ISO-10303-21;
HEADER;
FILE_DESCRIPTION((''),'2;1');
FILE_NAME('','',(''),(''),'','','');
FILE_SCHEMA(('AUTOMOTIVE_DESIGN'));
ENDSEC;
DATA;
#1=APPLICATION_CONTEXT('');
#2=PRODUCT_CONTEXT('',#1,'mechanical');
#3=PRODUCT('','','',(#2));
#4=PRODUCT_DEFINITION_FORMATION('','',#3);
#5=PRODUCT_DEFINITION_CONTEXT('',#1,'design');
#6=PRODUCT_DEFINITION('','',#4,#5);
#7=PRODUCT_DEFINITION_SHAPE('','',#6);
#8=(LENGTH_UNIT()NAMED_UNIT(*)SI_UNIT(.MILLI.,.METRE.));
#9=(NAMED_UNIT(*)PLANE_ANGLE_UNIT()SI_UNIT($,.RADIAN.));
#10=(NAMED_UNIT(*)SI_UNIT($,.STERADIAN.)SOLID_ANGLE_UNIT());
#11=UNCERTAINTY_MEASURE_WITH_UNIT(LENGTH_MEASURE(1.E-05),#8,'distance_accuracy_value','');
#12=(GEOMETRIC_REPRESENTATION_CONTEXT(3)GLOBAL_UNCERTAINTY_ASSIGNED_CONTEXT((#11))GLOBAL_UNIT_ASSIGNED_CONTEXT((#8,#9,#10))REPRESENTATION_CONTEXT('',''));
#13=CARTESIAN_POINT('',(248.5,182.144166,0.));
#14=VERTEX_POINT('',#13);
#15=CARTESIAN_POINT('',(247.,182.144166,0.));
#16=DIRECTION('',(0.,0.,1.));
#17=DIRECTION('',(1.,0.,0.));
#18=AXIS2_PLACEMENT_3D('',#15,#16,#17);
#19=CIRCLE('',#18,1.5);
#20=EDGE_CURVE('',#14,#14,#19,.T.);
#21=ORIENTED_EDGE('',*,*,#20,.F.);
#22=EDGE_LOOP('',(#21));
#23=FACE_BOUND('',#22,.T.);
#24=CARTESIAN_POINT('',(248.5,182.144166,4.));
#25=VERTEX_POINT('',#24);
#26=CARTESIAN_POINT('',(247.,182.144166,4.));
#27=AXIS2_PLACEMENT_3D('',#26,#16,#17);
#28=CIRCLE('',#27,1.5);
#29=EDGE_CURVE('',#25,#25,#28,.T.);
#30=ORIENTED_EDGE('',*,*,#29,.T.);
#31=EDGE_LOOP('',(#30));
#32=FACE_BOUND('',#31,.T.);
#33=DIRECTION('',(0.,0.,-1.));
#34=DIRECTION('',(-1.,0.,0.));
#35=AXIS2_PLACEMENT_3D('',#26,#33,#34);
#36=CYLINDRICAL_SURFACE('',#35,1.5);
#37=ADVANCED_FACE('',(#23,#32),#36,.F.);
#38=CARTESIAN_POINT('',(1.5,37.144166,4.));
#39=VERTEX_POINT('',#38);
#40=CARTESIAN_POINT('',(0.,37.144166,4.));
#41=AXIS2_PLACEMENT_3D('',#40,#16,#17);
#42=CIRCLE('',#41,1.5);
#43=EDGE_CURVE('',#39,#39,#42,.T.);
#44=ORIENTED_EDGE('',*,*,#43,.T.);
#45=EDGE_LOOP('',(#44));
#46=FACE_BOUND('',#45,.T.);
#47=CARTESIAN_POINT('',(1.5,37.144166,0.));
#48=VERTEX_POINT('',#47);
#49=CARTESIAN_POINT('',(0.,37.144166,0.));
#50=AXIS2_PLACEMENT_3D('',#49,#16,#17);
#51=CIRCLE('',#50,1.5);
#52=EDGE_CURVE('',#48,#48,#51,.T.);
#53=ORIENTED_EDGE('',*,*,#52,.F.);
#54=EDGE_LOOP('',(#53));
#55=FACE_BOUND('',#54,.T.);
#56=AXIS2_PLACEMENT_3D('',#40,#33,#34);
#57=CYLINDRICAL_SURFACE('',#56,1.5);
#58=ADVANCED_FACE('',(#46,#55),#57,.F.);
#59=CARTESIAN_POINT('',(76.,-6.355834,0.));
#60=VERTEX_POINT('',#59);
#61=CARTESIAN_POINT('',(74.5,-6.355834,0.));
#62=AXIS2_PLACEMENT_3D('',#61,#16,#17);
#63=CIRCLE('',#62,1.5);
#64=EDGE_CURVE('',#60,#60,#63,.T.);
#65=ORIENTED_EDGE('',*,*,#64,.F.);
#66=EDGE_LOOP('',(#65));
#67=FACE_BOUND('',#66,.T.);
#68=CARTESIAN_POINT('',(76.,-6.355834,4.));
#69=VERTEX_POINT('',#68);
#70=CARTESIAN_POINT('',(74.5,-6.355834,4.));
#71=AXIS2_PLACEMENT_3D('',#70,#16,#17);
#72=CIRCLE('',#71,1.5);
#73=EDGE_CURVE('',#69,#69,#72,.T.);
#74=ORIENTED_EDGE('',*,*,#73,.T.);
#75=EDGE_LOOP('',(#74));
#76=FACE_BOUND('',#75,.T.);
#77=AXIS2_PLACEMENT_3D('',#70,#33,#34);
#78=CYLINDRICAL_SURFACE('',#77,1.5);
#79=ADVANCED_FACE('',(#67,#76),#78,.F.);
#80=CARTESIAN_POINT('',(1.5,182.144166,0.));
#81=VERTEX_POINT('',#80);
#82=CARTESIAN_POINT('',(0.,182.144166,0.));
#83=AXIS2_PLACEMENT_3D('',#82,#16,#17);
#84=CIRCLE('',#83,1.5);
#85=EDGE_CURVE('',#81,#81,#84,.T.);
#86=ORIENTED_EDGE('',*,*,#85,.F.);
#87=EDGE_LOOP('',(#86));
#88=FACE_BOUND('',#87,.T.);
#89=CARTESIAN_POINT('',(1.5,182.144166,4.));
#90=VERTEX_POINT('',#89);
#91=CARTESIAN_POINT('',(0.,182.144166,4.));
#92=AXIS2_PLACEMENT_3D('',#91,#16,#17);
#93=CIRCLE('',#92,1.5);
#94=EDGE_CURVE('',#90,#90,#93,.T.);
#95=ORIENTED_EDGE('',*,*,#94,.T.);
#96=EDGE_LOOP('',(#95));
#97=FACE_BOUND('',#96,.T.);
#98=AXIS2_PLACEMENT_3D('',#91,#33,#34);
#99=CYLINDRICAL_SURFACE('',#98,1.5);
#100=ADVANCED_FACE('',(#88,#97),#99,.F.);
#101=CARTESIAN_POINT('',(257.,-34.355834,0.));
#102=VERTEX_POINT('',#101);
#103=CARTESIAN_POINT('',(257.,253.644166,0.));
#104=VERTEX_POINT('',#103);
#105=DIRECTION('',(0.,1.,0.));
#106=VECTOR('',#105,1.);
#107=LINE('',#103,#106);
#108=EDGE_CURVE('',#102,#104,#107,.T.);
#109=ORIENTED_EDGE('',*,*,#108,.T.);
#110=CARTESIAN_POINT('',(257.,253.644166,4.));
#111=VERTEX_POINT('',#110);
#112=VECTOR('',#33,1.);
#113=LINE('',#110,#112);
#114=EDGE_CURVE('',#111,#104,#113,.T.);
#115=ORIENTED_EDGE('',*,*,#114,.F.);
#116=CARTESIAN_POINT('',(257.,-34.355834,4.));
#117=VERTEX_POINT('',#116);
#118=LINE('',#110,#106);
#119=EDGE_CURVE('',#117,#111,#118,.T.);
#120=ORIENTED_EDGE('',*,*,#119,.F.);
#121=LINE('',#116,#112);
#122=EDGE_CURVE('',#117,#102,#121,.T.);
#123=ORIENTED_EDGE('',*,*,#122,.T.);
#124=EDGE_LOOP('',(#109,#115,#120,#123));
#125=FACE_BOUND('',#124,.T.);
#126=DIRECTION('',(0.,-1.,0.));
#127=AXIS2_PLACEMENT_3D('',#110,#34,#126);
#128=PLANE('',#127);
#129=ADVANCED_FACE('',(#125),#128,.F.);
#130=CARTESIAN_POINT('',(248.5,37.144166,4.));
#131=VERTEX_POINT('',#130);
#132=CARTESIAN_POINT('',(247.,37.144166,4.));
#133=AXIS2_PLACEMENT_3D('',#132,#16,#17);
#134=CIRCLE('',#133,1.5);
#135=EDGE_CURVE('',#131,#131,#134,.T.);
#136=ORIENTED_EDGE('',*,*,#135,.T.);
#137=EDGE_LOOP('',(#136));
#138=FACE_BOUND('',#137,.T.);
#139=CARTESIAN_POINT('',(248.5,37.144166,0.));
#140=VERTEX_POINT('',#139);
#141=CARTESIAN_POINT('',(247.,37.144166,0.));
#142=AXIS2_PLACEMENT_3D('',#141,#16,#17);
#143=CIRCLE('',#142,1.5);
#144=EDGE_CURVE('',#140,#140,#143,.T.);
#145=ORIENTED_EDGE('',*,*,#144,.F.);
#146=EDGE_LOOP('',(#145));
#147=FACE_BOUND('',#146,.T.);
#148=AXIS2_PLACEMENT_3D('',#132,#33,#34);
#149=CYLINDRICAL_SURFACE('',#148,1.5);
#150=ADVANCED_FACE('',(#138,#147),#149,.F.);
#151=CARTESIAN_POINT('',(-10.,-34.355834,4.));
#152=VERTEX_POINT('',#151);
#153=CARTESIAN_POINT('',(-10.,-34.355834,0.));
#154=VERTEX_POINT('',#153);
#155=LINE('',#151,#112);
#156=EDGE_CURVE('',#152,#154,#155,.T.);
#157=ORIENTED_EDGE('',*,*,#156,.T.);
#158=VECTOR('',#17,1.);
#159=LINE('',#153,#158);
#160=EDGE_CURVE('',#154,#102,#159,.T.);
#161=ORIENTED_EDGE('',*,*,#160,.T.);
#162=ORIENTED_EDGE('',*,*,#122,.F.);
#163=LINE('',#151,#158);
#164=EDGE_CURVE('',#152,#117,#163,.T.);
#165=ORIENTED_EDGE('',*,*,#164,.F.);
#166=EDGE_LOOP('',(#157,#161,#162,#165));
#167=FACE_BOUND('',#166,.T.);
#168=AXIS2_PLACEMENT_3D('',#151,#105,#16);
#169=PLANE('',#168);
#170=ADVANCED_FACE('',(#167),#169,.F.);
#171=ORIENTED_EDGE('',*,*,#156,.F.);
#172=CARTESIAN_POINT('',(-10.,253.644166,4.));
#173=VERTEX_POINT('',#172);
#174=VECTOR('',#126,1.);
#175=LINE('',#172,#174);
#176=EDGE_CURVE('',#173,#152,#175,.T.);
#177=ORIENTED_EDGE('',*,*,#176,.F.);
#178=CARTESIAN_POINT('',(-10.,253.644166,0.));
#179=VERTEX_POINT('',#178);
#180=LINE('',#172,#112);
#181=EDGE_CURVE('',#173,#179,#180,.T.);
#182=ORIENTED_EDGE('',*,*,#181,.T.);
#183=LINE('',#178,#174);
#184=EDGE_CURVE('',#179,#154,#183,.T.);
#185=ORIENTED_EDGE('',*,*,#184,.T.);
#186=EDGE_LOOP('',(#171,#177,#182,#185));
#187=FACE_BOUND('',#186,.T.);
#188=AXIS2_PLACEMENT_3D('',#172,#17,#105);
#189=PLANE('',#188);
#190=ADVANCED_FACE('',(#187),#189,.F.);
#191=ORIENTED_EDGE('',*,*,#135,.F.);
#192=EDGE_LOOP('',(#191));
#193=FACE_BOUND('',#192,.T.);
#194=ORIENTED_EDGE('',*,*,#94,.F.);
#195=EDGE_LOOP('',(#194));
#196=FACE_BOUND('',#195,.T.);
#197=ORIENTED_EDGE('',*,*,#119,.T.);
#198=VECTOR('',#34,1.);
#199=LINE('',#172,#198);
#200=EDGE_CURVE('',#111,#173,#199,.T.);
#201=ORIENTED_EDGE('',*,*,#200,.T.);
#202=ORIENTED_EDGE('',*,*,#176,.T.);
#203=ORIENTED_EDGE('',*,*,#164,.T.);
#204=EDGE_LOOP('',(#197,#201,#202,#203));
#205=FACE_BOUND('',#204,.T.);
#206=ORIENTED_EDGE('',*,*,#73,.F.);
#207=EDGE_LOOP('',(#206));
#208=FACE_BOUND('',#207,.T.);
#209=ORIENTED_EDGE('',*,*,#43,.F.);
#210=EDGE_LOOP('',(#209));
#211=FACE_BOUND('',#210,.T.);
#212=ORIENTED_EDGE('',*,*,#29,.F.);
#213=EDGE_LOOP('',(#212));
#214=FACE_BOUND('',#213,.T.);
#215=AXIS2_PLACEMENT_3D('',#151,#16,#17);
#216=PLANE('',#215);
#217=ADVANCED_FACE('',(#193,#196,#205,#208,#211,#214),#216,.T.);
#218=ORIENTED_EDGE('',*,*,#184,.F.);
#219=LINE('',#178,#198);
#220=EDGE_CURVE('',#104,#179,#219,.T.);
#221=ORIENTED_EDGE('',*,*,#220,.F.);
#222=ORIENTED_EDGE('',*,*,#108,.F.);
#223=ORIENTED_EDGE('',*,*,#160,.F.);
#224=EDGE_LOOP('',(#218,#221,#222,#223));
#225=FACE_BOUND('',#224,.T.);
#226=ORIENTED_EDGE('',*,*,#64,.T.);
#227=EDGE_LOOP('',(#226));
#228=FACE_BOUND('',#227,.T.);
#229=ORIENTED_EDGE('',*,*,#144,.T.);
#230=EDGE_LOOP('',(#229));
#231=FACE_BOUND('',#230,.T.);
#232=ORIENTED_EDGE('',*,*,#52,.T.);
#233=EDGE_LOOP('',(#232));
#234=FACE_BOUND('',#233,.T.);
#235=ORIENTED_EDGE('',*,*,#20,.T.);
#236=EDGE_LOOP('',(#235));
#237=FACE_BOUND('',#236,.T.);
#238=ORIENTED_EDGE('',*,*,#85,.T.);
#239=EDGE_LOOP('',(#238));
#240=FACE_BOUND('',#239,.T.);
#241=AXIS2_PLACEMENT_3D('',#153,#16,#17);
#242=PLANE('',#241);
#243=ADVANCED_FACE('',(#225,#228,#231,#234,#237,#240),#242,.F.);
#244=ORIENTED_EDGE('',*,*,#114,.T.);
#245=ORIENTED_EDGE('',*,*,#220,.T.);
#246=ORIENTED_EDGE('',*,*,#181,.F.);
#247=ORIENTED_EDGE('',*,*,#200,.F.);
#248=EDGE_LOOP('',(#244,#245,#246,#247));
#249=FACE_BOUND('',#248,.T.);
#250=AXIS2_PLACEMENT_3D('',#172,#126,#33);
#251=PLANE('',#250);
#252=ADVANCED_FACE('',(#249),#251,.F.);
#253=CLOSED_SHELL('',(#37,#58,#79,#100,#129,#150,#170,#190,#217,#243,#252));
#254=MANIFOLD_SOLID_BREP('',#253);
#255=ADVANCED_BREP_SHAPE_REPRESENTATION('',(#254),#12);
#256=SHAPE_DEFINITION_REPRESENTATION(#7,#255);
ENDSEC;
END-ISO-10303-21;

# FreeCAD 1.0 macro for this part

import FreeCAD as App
import Part
import Sketcher
Q = App.Units.Quantity


def add_polygon(sketch, points):
    """Adds a closed chain of lines whose ends are joined by coincident constraints."""
    first, n = sketch.GeometryCount, len(points)
    for a, b in zip(points, points[1:] + points[:1]):
        sketch.addGeometry(Part.LineSegment(App.Vector(*a, 0), App.Vector(*b, 0)), False)
    for i in range(n):
        sketch.addConstraint(Sketcher.Constraint("Coincident", first + i, 2, first + (i + 1) % n, 1))

doc = App.newDocument("Part")
body = doc.addObject("PartDesign::Body", "Body")

# Sketch on XY plane
sketch1 = body.newObject("Sketcher::SketchObject", "Sketch")
sketch1.AttachmentSupport = (doc.getObject("XY_Plane"), [""])
sketch1.MapMode = "FlatFace"
add_polygon(sketch1, [(-10, 253.6), (-10, -34.4), (257, -34.4), (257, 253.6)])  # lines 0-3
sketch1.addGeometry(Part.Circle(App.Vector(0, 37.1, 0), App.Vector(0, 0, 1), 1.5), False)  # 4
sketch1.addGeometry(Part.Circle(App.Vector(74.5, -6.4, 0), App.Vector(0, 0, 1), 1.5), False)  # 5
sketch1.addGeometry(Part.Circle(App.Vector(247, 37.1, 0), App.Vector(0, 0, 1), 1.5), False)  # 6
sketch1.addGeometry(Part.Circle(App.Vector(0, 182.1, 0), App.Vector(0, 0, 1), 1.5), False)  # 7
sketch1.addGeometry(Part.Circle(App.Vector(247, 182.1, 0), App.Vector(0, 0, 1), 1.5), False)  # 8
sketch1.addConstraint([
    Sketcher.Constraint("Vertical", 0),
    Sketcher.Constraint("Horizontal", 1),
    Sketcher.Constraint("Vertical", 2),
    Sketcher.Constraint("Horizontal", 3),
    Sketcher.Constraint("Equal", 4, 5),
    Sketcher.Constraint("Equal", 5, 6),
    Sketcher.Constraint("Equal", 6, 7),
    Sketcher.Constraint("Equal", 7, 8),
    Sketcher.Constraint("PointOnObject", 4, 3, -2),
    Sketcher.Constraint("PointOnObject", 7, 3, -2),
    Sketcher.Constraint("Horizontal", 4, 3, 6, 3),
    Sketcher.Constraint("Horizontal", 7, 3, 8, 3),
    Sketcher.Constraint("Vertical", 6, 3, 8, 3),
    Sketcher.Constraint("Diameter", 4, Q("3 mm")),
    Sketcher.Constraint("DistanceX", 1, 1, 1, 2, Q("267 mm")),
    Sketcher.Constraint("DistanceY", 0, 2, 0, 1, Q("288 mm")),
    Sketcher.Constraint("DistanceX", -1, 1, 6, 3, Q("247 mm")),
    Sketcher.Constraint("DistanceX", 0, 2, -1, 1, Q("10 mm")),
    Sketcher.Constraint("DistanceY", 4, 3, 7, 3, Q("145 mm")),
    Sketcher.Constraint("DistanceY", 0, 2, 5, 3, Q("28 mm")),
    Sketcher.Constraint("DistanceX", -1, 1, 5, 3, Q("74.5 mm")),
    Sketcher.Constraint("DistanceY", 5, 3, 4, 3, Q("43.5 mm")),
    Sketcher.Constraint("DistanceY", -1, 1, 4, 3, Q("37.144166 mm")),
])
pad1 = body.newObject("PartDesign::Pad", "Pad")
pad1.Profile = sketch1
pad1.Length = 4

doc.recompute()
